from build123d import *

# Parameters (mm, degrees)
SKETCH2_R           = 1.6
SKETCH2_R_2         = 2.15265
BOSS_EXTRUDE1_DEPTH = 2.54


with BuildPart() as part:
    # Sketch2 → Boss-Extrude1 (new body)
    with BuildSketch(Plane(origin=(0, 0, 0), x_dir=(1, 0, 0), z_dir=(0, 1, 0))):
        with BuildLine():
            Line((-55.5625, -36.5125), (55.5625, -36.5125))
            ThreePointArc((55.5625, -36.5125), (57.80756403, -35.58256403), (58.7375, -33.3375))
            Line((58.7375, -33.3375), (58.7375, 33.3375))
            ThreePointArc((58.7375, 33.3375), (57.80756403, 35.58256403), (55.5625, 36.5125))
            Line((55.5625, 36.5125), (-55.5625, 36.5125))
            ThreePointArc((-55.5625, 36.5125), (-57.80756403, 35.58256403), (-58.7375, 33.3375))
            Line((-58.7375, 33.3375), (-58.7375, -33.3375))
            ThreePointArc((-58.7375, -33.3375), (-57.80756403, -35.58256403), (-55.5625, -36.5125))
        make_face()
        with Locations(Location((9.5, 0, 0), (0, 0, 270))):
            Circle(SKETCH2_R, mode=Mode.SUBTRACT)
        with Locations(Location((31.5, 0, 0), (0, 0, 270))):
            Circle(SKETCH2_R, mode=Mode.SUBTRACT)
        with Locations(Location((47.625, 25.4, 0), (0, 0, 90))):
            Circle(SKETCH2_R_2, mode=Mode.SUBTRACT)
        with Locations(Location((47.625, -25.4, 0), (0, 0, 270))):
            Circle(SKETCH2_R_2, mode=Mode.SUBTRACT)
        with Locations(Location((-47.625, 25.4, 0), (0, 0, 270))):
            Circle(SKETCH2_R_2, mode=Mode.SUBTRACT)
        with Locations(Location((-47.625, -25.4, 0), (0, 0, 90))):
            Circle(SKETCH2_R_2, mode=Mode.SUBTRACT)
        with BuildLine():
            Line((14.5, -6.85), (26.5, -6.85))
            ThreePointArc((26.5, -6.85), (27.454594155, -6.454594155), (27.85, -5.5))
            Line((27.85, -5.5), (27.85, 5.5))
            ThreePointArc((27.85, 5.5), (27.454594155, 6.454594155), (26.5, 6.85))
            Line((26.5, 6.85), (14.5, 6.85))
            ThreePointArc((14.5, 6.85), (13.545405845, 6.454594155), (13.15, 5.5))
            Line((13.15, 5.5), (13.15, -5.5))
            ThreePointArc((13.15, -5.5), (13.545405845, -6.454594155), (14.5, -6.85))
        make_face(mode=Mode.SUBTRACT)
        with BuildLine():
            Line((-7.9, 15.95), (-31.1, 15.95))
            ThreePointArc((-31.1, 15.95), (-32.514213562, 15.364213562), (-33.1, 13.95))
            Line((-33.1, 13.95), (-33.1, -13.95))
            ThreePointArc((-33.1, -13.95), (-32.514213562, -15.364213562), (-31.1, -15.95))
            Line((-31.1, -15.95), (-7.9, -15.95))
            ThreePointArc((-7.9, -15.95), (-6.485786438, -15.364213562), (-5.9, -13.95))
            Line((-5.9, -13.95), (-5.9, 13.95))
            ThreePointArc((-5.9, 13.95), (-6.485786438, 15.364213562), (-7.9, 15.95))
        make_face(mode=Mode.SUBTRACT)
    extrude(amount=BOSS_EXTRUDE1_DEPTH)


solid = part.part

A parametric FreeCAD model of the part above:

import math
import FreeCAD as App
import Part
import Sketcher
from FreeCAD import Vector
Q = App.Units.Quantity

doc = App.newDocument("Part")
body = doc.addObject("PartDesign::Body", "Body")

# Sketch on XZ plane
sketch1 = body.newObject("Sketcher::SketchObject", "Sketch")
sketch1.AttachmentSupport = (doc.getObject("XZ_Plane"), [""])
sketch1.MapMode = "FlatFace"
sketch1.addGeometry([
    Part.LineSegment(Vector(-55.6, 36.5, 0), Vector(55.6, 36.5, 0)),  # 0
    Part.ArcOfCircle(Part.Circle(Vector(55.6, 33.3, 0), Vector(0, 0, 1), 3.2), math.radians(0), math.radians(90)),  # 1
    Part.LineSegment(Vector(58.7, 33.3, 0), Vector(58.7, -33.3, 0)),  # 2
    Part.ArcOfCircle(Part.Circle(Vector(55.6, -33.3, 0), Vector(0, 0, 1), 3.2), math.radians(-90), math.radians(0)),  # 3
    Part.LineSegment(Vector(55.6, -36.5, 0), Vector(-55.6, -36.5, 0)),  # 4
    Part.ArcOfCircle(Part.Circle(Vector(-55.6, -33.3, 0), Vector(0, 0, 1), 3.2), math.radians(-180), math.radians(-90)),  # 5
    Part.LineSegment(Vector(-58.7, -33.3, 0), Vector(-58.7, 33.3, 0)),  # 6
    Part.ArcOfCircle(Part.Circle(Vector(-55.6, 33.3, 0), Vector(0, 0, 1), 3.2), math.radians(90), math.radians(180)),  # 7
    Part.Circle(Vector(-47.6, 25.4, 0), Vector(0, 0, 1), 2.2),  # 8
    Part.LineSegment(Vector(-31.1, -15.9, 0), Vector(-7.9, -15.9, 0)),  # 9
    Part.ArcOfCircle(Part.Circle(Vector(-7.9, -13.9, 0), Vector(0, 0, 1), 2), math.radians(-90), math.radians(0)),  # 10
    Part.LineSegment(Vector(-5.9, -13.9, 0), Vector(-5.9, 13.9, 0)),  # 11
    Part.ArcOfCircle(Part.Circle(Vector(-7.9, 13.9, 0), Vector(0, 0, 1), 2), math.radians(0), math.radians(90)),  # 12
    Part.LineSegment(Vector(-7.9, 15.9, 0), Vector(-31.1, 15.9, 0)),  # 13
    Part.ArcOfCircle(Part.Circle(Vector(-31.1, 13.9, 0), Vector(0, 0, 1), 2), math.radians(90), math.radians(180)),  # 14
    Part.LineSegment(Vector(-33.1, 13.9, 0), Vector(-33.1, -13.9, 0)),  # 15
    Part.ArcOfCircle(Part.Circle(Vector(-31.1, -13.9, 0), Vector(0, 0, 1), 2), math.radians(-180), math.radians(-90)),  # 16
    Part.Circle(Vector(47.6, 25.4, 0), Vector(0, 0, 1), 2.2),  # 17
    Part.Circle(Vector(9.5, 0, 0), Vector(0, 0, 1), 1.6),  # 18
    Part.LineSegment(Vector(26.5, 6.8, 0), Vector(14.5, 6.8, 0)),  # 19
    Part.ArcOfCircle(Part.Circle(Vector(14.5, 5.5, 0), Vector(0, 0, 1), 1.3), math.radians(90), math.radians(180)),  # 20
    Part.LineSegment(Vector(13.2, 5.5, 0), Vector(13.2, -5.5, 0)),  # 21
    Part.ArcOfCircle(Part.Circle(Vector(14.5, -5.5, 0), Vector(0, 0, 1), 1.3), math.radians(180), math.radians(270)),  # 22
    Part.LineSegment(Vector(14.5, -6.8, 0), Vector(26.5, -6.8, 0)),  # 23
    Part.ArcOfCircle(Part.Circle(Vector(26.5, -5.5, 0), Vector(0, 0, 1), 1.3), math.radians(-90), math.radians(0)),  # 24
    Part.LineSegment(Vector(27.9, -5.5, 0), Vector(27.9, 5.5, 0)),  # 25
    Part.ArcOfCircle(Part.Circle(Vector(26.5, 5.5, 0), Vector(0, 0, 1), 1.3), math.radians(0), math.radians(90)),  # 26
    Part.Circle(Vector(31.5, 0, 0), Vector(0, 0, 1), 1.6),  # 27
    Part.Circle(Vector(-47.6, -25.4, 0), Vector(0, 0, 1), 2.2),  # 28
    Part.Circle(Vector(47.6, -25.4, 0), Vector(0, 0, 1), 2.2),  # 29
], False)
sketch1.addConstraint([
    Sketcher.Constraint("Tangent", 0, 2, 1, 2),
    Sketcher.Constraint("Tangent", 1, 1, 2, 1),
    Sketcher.Constraint("Tangent", 2, 2, 3, 2),
    Sketcher.Constraint("Tangent", 3, 1, 4, 1),
    Sketcher.Constraint("Tangent", 4, 2, 5, 2),
    Sketcher.Constraint("Tangent", 5, 1, 6, 1),
    Sketcher.Constraint("Tangent", 6, 2, 7, 2),
    Sketcher.Constraint("Tangent", 7, 1, 0, 1),
    Sketcher.Constraint("Tangent", 9, 2, 10, 1),
    Sketcher.Constraint("Tangent", 10, 2, 11, 1),
    Sketcher.Constraint("Tangent", 11, 2, 12, 1),
    Sketcher.Constraint("Tangent", 12, 2, 13, 1),
    Sketcher.Constraint("Tangent", 13, 2, 14, 1),
    Sketcher.Constraint("Tangent", 14, 2, 15, 1),
    Sketcher.Constraint("Tangent", 15, 2, 16, 1),
    Sketcher.Constraint("Tangent", 16, 2, 9, 1),
    Sketcher.Constraint("Tangent", 19, 2, 20, 1),
    Sketcher.Constraint("Tangent", 20, 2, 21, 1),
    Sketcher.Constraint("Tangent", 21, 2, 22, 1),
    Sketcher.Constraint("Tangent", 22, 2, 23, 1),
    Sketcher.Constraint("Tangent", 23, 2, 24, 1),
    Sketcher.Constraint("Tangent", 24, 2, 25, 1),
    Sketcher.Constraint("Tangent", 25, 2, 26, 1),
    Sketcher.Constraint("Tangent", 26, 2, 19, 1),
    Sketcher.Constraint("Horizontal", 0),
    Sketcher.Constraint("Vertical", 2),
    Sketcher.Constraint("Horizontal", 4),
    Sketcher.Constraint("Vertical", 6),
    Sketcher.Constraint("Horizontal", 9),
    Sketcher.Constraint("Vertical", 11),
    Sketcher.Constraint("Horizontal", 13),
    Sketcher.Constraint("Vertical", 15),
    Sketcher.Constraint("Horizontal", 19),
    Sketcher.Constraint("Vertical", 21),
    Sketcher.Constraint("Horizontal", 23),
    Sketcher.Constraint("Vertical", 25),
    Sketcher.Constraint("Equal", 1, 3),
    Sketcher.Constraint("Equal", 3, 5),
    Sketcher.Constraint("Equal", 5, 7),
    Sketcher.Constraint("Equal", 10, 12),
    Sketcher.Constraint("Equal", 12, 14),
    Sketcher.Constraint("Equal", 14, 16),
    Sketcher.Constraint("Equal", 8, 17),
    Sketcher.Constraint("Equal", 20, 22),
    Sketcher.Constraint("Equal", 22, 24),
    Sketcher.Constraint("Equal", 24, 26),
    Sketcher.Constraint("Equal", 18, 27),
    Sketcher.Constraint("Equal", 17, 28),
    Sketcher.Constraint("Equal", 28, 29),
    Sketcher.Constraint("Symmetric", 1, 3, 5, 3, -1, 1),
    Sketcher.Constraint("Symmetric", 17, 3, 28, 3, -1, 1),
    Sketcher.Constraint("Symmetric", 8, 3, 29, 3, -1, 1),
    Sketcher.Constraint("Symmetric", 8, 3, 17, 3, -2),
    Sketcher.Constraint("PointOnObject", 18, 3, -1),
    Sketcher.Constraint("PointOnObject", 27, 3, -1),
    Sketcher.Constraint("Radius", 10, Q("2 mm")),
    Sketcher.Constraint("Diameter", 18, Q("3.2 mm")),
    Sketcher.Constraint("DistanceX", 19, 2, 19, 1, Q("12 mm")),
    Sketcher.Constraint("DistanceY", 21, 2, 21, 1, Q("11 mm")),
    Sketcher.Constraint("Radius", 20, Q("1.35 mm")),
    Sketcher.Constraint("DistanceX", 9, 1, 9, 2, Q("23.2 mm")),
    Sketcher.Constraint("DistanceY", 11, 1, 11, 2, Q("27.9 mm")),
    Sketcher.Constraint("Radius", 1, Q("3.175 mm")),
    Sketcher.Constraint("DistanceX", 18, 3, 20, 3, Q("5 mm")),
    Sketcher.Constraint("DistanceX", 24, 3, 27, 3, Q("5 mm")),
    Sketcher.Constraint("Diameter", 8, Q("4.3053 mm")),
    Sketcher.Constraint("DistanceY", -1, 1, 8, 3, Q("25.4 mm")),
    Sketcher.Constraint("DistanceX", 10, 3, -1, 1, Q("7.9 mm")),
    Sketcher.Constraint("DistanceX", -1, 1, 18, 3, Q("9.5 mm")),
    Sketcher.Constraint("DistanceY", -1, 1, 20, 3, Q("5.5 mm")),
    Sketcher.Constraint("DistanceX", 0, 1, 0, 2, Q("111.125 mm")),
    Sketcher.Constraint("DistanceY", 2, 2, 2, 1, Q("66.675 mm")),
    Sketcher.Constraint("DistanceY", 10, 3, -1, 1, Q("13.95 mm")),
    Sketcher.Constraint("DistanceX", 8, 3, -1, 1, Q("47.625 mm")),
])
pad1 = body.newObject("PartDesign::Pad", "Pad")
pad1.Profile = sketch1
pad1.Length = 2.54
pad1.Reversed = True

doc.recompute()
